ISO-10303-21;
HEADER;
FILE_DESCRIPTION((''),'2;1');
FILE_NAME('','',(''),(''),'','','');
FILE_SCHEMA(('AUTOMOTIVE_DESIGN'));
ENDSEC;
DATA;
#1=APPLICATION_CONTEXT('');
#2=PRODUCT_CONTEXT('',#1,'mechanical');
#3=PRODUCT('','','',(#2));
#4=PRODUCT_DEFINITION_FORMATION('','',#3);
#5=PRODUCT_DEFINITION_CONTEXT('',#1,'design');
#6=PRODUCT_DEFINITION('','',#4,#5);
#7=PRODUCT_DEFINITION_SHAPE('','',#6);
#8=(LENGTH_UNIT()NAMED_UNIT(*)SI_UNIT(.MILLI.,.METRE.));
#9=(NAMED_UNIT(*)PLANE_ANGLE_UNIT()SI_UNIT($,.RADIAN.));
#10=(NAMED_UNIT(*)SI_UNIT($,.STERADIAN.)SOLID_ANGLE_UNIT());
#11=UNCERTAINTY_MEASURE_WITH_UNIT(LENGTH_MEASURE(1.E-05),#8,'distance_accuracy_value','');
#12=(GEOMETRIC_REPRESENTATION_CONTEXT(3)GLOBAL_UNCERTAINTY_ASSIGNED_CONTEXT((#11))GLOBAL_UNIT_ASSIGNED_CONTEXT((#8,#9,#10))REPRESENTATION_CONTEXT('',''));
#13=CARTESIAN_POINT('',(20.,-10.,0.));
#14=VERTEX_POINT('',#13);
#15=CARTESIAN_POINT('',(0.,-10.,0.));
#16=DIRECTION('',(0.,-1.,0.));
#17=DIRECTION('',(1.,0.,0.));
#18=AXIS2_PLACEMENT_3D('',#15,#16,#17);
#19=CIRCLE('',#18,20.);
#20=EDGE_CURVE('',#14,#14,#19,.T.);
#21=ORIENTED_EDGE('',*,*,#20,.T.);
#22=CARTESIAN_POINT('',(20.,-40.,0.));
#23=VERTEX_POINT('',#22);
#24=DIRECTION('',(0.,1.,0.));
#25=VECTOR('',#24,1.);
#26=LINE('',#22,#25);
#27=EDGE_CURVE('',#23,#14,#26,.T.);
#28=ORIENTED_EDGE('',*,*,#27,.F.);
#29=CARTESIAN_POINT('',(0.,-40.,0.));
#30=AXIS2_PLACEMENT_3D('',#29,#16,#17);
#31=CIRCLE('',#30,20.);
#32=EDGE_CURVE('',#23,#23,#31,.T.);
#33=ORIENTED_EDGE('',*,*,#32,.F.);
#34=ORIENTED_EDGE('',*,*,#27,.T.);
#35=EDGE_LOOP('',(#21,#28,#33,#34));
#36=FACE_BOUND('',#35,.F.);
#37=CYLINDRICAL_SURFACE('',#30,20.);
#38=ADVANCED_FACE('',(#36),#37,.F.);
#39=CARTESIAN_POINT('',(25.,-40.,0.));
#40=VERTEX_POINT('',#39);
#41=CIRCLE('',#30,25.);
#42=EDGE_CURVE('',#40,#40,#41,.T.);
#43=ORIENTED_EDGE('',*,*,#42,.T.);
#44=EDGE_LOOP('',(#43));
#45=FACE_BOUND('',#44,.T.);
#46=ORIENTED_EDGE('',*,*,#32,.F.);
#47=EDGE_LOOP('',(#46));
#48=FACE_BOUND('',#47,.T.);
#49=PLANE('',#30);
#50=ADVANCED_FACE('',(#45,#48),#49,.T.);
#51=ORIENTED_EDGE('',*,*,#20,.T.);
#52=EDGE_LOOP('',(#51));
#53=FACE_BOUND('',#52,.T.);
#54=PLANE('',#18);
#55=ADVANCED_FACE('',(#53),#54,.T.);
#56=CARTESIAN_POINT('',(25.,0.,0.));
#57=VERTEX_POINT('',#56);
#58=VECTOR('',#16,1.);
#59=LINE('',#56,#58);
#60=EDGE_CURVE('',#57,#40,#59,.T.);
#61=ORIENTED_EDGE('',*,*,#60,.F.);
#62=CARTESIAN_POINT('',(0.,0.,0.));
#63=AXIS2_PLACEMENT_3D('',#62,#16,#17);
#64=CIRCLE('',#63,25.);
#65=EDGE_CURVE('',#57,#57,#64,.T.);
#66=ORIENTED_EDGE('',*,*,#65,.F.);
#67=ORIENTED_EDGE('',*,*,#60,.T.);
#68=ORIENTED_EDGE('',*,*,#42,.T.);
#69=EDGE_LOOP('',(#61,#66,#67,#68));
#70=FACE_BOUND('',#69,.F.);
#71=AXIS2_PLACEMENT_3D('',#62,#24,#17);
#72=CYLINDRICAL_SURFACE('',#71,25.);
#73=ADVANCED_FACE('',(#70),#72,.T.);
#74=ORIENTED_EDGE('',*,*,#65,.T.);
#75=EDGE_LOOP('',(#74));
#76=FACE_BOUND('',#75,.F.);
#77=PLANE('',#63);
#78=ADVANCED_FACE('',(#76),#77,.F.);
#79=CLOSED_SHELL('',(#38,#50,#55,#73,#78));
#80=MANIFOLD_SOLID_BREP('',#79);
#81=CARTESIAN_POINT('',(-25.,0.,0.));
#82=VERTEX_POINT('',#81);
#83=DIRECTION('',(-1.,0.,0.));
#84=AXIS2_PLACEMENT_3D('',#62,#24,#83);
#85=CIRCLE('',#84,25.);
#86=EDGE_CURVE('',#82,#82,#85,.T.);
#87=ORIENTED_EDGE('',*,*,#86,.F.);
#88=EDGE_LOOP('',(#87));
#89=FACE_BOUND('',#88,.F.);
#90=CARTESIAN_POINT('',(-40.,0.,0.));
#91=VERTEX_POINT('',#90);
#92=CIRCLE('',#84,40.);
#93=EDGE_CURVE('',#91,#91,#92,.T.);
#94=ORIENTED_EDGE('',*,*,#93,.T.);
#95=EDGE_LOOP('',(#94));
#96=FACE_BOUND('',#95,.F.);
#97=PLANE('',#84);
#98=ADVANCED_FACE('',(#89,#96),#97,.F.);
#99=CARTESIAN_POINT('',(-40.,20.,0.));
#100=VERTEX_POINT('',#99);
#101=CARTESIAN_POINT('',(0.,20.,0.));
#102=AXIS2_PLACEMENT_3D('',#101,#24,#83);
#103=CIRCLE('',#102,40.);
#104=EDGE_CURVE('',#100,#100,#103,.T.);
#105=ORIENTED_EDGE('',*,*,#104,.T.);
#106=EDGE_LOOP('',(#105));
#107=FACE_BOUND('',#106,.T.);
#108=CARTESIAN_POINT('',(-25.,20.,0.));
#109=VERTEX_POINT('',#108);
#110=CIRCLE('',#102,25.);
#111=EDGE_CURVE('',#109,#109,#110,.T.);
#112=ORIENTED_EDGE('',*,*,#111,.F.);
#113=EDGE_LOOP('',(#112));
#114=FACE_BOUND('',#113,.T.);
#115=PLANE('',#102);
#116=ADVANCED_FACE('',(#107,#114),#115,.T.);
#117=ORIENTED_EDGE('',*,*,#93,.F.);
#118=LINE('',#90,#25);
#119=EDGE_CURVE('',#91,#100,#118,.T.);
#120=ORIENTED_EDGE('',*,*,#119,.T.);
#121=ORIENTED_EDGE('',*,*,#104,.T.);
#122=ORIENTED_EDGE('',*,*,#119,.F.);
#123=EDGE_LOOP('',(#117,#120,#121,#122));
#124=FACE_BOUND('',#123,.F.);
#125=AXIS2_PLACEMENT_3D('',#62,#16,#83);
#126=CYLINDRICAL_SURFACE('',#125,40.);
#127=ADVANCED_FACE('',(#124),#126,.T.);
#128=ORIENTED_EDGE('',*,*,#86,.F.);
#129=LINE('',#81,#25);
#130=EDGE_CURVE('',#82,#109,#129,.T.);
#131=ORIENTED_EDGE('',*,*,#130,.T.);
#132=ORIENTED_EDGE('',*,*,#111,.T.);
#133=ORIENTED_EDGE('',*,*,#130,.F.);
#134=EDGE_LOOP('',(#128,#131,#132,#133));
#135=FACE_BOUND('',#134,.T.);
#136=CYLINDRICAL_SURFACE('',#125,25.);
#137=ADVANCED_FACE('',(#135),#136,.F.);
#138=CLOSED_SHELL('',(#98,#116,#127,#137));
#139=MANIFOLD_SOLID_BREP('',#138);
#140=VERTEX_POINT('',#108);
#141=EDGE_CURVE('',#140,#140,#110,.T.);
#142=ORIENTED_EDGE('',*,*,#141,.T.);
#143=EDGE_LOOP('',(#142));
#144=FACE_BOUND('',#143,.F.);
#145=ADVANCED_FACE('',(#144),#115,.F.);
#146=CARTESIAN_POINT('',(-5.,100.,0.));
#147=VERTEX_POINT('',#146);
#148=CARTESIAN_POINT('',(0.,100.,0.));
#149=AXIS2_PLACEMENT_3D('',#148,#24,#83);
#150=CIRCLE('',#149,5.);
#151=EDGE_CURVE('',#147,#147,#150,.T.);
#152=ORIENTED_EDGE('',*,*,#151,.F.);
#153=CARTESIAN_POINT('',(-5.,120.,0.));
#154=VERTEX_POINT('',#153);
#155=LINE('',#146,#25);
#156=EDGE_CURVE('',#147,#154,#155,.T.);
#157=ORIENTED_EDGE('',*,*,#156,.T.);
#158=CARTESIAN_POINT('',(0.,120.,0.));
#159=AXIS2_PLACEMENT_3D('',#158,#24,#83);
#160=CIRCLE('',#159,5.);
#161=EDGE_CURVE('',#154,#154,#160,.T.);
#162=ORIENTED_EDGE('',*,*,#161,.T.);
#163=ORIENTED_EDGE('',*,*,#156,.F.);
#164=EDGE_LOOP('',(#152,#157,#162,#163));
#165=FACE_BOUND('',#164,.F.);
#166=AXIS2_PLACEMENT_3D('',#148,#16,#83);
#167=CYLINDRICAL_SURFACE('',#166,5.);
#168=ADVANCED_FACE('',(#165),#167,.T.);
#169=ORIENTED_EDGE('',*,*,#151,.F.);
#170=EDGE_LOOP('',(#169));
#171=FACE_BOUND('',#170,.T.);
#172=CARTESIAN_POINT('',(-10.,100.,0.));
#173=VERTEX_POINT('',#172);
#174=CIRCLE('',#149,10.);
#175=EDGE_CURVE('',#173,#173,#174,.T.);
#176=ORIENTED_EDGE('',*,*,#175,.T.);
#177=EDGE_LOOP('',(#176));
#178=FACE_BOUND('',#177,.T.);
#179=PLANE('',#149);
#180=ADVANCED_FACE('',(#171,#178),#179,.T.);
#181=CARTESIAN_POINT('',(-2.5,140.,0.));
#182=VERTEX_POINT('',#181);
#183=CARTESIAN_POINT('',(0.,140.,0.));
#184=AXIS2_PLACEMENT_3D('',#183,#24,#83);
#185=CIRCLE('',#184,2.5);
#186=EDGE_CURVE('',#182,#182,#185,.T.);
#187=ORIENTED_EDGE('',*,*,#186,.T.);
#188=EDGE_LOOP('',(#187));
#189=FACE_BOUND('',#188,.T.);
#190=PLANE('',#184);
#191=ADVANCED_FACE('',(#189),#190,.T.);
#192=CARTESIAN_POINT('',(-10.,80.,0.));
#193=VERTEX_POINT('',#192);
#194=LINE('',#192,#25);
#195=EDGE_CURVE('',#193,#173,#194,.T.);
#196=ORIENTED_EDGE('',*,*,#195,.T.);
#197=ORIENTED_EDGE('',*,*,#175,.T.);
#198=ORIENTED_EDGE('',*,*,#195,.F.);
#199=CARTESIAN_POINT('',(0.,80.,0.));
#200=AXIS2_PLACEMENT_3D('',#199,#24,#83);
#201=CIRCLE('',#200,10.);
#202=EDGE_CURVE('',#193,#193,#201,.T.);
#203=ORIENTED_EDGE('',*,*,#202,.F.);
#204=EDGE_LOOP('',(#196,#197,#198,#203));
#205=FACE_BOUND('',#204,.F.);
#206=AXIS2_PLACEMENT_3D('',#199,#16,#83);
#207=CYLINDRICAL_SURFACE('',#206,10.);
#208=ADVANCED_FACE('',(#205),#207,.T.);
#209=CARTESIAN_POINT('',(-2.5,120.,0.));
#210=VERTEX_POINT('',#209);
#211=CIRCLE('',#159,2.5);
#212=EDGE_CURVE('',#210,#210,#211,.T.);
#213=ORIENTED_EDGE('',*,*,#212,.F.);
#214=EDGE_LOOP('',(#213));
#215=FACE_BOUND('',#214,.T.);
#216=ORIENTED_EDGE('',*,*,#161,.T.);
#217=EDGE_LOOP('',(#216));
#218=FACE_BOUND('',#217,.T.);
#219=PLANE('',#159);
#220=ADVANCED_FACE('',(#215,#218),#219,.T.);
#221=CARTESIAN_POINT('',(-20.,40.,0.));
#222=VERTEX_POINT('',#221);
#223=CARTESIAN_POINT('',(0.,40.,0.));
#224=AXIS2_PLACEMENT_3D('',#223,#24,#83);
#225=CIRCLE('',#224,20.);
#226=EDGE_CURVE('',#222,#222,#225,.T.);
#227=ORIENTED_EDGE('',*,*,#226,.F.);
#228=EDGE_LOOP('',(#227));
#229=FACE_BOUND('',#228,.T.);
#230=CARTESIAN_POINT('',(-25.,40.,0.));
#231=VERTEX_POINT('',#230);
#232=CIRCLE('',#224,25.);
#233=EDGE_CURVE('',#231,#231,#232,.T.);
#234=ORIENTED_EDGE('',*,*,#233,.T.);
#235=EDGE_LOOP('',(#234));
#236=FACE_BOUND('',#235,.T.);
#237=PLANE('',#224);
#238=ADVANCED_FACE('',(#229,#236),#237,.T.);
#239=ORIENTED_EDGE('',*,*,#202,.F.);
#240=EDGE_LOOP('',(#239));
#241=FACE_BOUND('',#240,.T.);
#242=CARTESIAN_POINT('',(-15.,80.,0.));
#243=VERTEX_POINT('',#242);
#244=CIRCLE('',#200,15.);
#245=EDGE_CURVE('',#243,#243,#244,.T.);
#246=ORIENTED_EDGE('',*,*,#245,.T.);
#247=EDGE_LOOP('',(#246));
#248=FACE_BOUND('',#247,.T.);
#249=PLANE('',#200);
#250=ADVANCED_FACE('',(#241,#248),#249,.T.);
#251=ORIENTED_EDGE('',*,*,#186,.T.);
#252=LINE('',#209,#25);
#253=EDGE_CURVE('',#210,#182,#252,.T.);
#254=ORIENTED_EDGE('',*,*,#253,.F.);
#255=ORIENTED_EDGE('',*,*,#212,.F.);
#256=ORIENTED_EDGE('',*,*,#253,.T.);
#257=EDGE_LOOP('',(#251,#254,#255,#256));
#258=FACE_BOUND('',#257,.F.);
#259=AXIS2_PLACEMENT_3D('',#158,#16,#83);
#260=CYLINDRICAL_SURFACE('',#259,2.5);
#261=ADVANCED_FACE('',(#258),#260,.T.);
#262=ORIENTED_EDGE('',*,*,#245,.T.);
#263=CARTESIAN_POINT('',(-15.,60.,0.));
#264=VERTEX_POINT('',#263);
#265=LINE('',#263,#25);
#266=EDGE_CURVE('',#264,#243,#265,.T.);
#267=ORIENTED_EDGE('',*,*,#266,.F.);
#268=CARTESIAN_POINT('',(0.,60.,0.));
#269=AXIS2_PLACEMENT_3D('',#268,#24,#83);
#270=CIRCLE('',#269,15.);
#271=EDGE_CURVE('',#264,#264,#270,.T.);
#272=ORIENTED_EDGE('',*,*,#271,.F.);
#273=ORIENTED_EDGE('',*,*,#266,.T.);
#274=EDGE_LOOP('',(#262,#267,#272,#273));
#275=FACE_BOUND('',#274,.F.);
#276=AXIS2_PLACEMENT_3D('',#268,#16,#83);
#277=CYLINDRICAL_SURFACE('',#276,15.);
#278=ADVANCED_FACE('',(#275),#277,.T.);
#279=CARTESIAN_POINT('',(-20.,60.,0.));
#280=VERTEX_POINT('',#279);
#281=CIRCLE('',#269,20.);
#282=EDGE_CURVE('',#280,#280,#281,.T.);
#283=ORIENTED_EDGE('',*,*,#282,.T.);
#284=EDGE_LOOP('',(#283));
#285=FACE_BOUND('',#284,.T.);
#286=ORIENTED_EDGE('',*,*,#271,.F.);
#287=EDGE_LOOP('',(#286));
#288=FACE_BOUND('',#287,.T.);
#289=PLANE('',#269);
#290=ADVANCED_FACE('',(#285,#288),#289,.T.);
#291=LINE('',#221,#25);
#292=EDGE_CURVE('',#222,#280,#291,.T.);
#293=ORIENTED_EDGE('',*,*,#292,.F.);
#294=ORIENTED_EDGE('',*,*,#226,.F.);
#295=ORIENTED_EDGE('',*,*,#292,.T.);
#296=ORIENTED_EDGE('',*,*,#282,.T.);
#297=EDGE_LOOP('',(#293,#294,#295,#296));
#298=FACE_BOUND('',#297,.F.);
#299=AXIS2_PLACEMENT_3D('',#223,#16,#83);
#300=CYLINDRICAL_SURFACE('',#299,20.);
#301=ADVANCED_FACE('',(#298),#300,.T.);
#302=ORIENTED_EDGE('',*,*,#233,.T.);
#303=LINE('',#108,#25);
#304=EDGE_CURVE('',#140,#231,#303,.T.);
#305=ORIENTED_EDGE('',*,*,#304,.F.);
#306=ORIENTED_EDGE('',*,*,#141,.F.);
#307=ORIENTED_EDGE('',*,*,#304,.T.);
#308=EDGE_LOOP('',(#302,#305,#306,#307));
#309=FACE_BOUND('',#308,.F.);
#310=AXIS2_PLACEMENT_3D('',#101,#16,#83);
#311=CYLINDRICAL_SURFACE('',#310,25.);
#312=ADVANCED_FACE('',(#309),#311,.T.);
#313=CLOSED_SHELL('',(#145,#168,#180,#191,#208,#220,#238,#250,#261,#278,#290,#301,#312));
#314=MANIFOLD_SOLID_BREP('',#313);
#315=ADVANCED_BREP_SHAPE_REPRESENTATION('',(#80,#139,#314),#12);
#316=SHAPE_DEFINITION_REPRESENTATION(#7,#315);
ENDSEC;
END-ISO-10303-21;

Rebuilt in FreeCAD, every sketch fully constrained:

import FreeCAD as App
import Part
import Sketcher
from FreeCAD import Vector
Q = App.Units.Quantity

doc = App.newDocument("Part")
params = doc.addObject("Spreadsheet::Sheet", "Params")
for row, (alias, value) in enumerate([
    ("sketch1_diameter", "50 mm"),
    ("pad1_length", "40 mm"),
    ("sketch2_diameter", "40 mm"),
    ("pocket1_length", "30 mm"),
    ("sketch3_diameter", "80 mm"),
    ("sketch3_diameter2", "50 mm"),
    ("pad2_length", "20 mm"),
    ("sketch4_diameter", "50 mm"),
    ("pad3_length", "20 mm"),
    ("sketch5_diameter", "40 mm"),
    ("pad4_length", "20 mm"),
    ("sketch6_diameter", "30 mm"),
    ("pad5_length", "20 mm"),
    ("sketch7_diameter", "20 mm"),
    ("pad6_length", "20 mm"),
    ("sketch8_diameter", "10 mm"),
    ("pad7_length", "20 mm"),
    ("sketch9_diameter", "5 mm"),
    ("pad8_length", "20 mm"),
], start=1):
    params.set(f"A{row}", alias)
    params.set(f"B{row}", "=" + value)
    params.setAlias(f"B{row}", alias)

body = doc.addObject("PartDesign::Body", "Body")

# Sketch on XZ plane
sketch1 = body.newObject("Sketcher::SketchObject", "Sketch")
sketch1.AttachmentSupport = (doc.getObject("XZ_Plane"), [""])
sketch1.MapMode = "FlatFace"
sketch1.addGeometry(Part.Circle(Vector(0, 0, 0), Vector(0, 0, 1), 25), False)
sketch1.addConstraint([
    Sketcher.Constraint("Coincident", 0, 3, -1, 1),
    Sketcher.Constraint("Diameter", 0, Q("50 mm")),
])
sketch1.setExpression("Constraints[1]", "Params.sketch1_diameter")
pad1 = body.newObject("PartDesign::Pad", "Pad")
pad1.Profile = sketch1
pad1.setExpression("Length", "Params.pad1_length")

# Sketch on XZ plane
sketch2 = body.newObject("Sketcher::SketchObject", "Sketch001")
sketch2.AttachmentSupport = (doc.getObject("XZ_Plane"), [""])
sketch2.MapMode = "FlatFace"
sketch2.AttachmentOffset = App.Placement(Vector(0, 0, 40), App.Rotation())
sketch2.addGeometry(Part.Circle(Vector(0, 0, 0), Vector(0, 0, 1), 20), False)
sketch2.addConstraint([
    Sketcher.Constraint("Coincident", 0, 3, -1, 1),
    Sketcher.Constraint("Diameter", 0, Q("40 mm")),
])
sketch2.setExpression("Constraints[1]", "Params.sketch2_diameter")
pocket1 = body.newObject("PartDesign::Pocket", "Pocket")
pocket1.Profile = sketch2
pocket1.setExpression("Length", "Params.pocket1_length")
body2 = doc.addObject("PartDesign::Body", "Body001")

# Sketch on XZ plane
sketch3 = body2.newObject("Sketcher::SketchObject", "Sketch002")
sketch3.AttachmentSupport = (doc.getObject("XZ_Plane001"), [""])
sketch3.MapMode = "FlatFace"
sketch3.addGeometry([
    Part.Circle(Vector(0, 0, 0), Vector(0, 0, 1), 40),
    Part.Circle(Vector(0, 0, 0), Vector(0, 0, 1), 25),
], False)
sketch3.addConstraint([
    Sketcher.Constraint("Coincident", 0, 3, -1, 1),
    Sketcher.Constraint("Coincident", 1, 3, -1, 1),
    Sketcher.Constraint("Diameter", 0, Q("80 mm")),
    Sketcher.Constraint("Diameter", 1, Q("50 mm")),
])
sketch3.setExpression("Constraints[2]", "Params.sketch3_diameter")
sketch3.setExpression("Constraints[3]", "Params.sketch3_diameter2")
pad2 = body2.newObject("PartDesign::Pad", "Pad001")
pad2.Profile = sketch3
pad2.setExpression("Length", "Params.pad2_length")
pad2.Reversed = True
body3 = doc.addObject("PartDesign::Body", "Body002")

# Sketch on XZ plane
sketch4 = body3.newObject("Sketcher::SketchObject", "Sketch003")
sketch4.AttachmentSupport = (doc.getObject("XZ_Plane002"), [""])
sketch4.MapMode = "FlatFace"
sketch4.AttachmentOffset = App.Placement(Vector(0, 0, -20), App.Rotation())
sketch4.addGeometry(Part.Circle(Vector(0, 0, 0), Vector(0, 0, 1), 25), False)
sketch4.addConstraint([
    Sketcher.Constraint("Coincident", 0, 3, -1, 1),
    Sketcher.Constraint("Diameter", 0, Q("50 mm")),
])
sketch4.setExpression("Constraints[1]", "Params.sketch4_diameter")
pad3 = body3.newObject("PartDesign::Pad", "Pad002")
pad3.Profile = sketch4
pad3.setExpression("Length", "Params.pad3_length")
pad3.Reversed = True

# Sketch on XZ plane
sketch5 = body3.newObject("Sketcher::SketchObject", "Sketch004")
sketch5.AttachmentSupport = (doc.getObject("XZ_Plane002"), [""])
sketch5.MapMode = "FlatFace"
sketch5.AttachmentOffset = App.Placement(Vector(0, 0, -40), App.Rotation())
sketch5.addGeometry(Part.Circle(Vector(0, 0, 0), Vector(0, 0, 1), 20), False)
sketch5.addConstraint([
    Sketcher.Constraint("Coincident", 0, 3, -1, 1),
    Sketcher.Constraint("Diameter", 0, Q("40 mm")),
])
sketch5.setExpression("Constraints[1]", "Params.sketch5_diameter")
pad4 = body3.newObject("PartDesign::Pad", "Pad003")
pad4.Profile = sketch5
pad4.setExpression("Length", "Params.pad4_length")
pad4.Reversed = True

# Sketch on XZ plane
sketch6 = body3.newObject("Sketcher::SketchObject", "Sketch005")
sketch6.AttachmentSupport = (doc.getObject("XZ_Plane002"), [""])
sketch6.MapMode = "FlatFace"
sketch6.AttachmentOffset = App.Placement(Vector(0, 0, -60), App.Rotation())
sketch6.addGeometry(Part.Circle(Vector(0, 0, 0), Vector(0, 0, 1), 15), False)
sketch6.addConstraint([
    Sketcher.Constraint("Coincident", 0, 3, -1, 1),
    Sketcher.Constraint("Diameter", 0, Q("30 mm")),
])
sketch6.setExpression("Constraints[1]", "Params.sketch6_diameter")
pad5 = body3.newObject("PartDesign::Pad", "Pad004")
pad5.Profile = sketch6
pad5.setExpression("Length", "Params.pad5_length")
pad5.Reversed = True

# Sketch on XZ plane
sketch7 = body3.newObject("Sketcher::SketchObject", "Sketch006")
sketch7.AttachmentSupport = (doc.getObject("XZ_Plane002"), [""])
sketch7.MapMode = "FlatFace"
sketch7.AttachmentOffset = App.Placement(Vector(0, 0, -80), App.Rotation())
sketch7.addGeometry(Part.Circle(Vector(0, 0, 0), Vector(0, 0, 1), 10), False)
sketch7.addConstraint([
    Sketcher.Constraint("Coincident", 0, 3, -1, 1),
    Sketcher.Constraint("Diameter", 0, Q("20 mm")),
])
sketch7.setExpression("Constraints[1]", "Params.sketch7_diameter")
pad6 = body3.newObject("PartDesign::Pad", "Pad005")
pad6.Profile = sketch7
pad6.setExpression("Length", "Params.pad6_length")
pad6.Reversed = True

# Sketch on XZ plane
sketch8 = body3.newObject("Sketcher::SketchObject", "Sketch007")
sketch8.AttachmentSupport = (doc.getObject("XZ_Plane002"), [""])
sketch8.MapMode = "FlatFace"
sketch8.AttachmentOffset = App.Placement(Vector(0, 0, -100), App.Rotation())
sketch8.addGeometry(Part.Circle(Vector(0, 0, 0), Vector(0, 0, 1), 5), False)
sketch8.addConstraint([
    Sketcher.Constraint("Coincident", 0, 3, -1, 1),
    Sketcher.Constraint("Diameter", 0, Q("10 mm")),
])
sketch8.setExpression("Constraints[1]", "Params.sketch8_diameter")
pad7 = body3.newObject("PartDesign::Pad", "Pad006")
pad7.Profile = sketch8
pad7.setExpression("Length", "Params.pad7_length")
pad7.Reversed = True

# Sketch on XZ plane
sketch9 = body3.newObject("Sketcher::SketchObject", "Sketch008")
sketch9.AttachmentSupport = (doc.getObject("XZ_Plane002"), [""])
sketch9.MapMode = "FlatFace"
sketch9.AttachmentOffset = App.Placement(Vector(0, 0, -120), App.Rotation())
sketch9.addGeometry(Part.Circle(Vector(0, 0, 0), Vector(0, 0, 1), 2.5), False)
sketch9.addConstraint([
    Sketcher.Constraint("Coincident", 0, 3, -1, 1),
    Sketcher.Constraint("Diameter", 0, Q("5 mm")),
])
sketch9.setExpression("Constraints[1]", "Params.sketch9_diameter")
pad8 = body3.newObject("PartDesign::Pad", "Pad007")
pad8.Profile = sketch9
pad8.setExpression("Length", "Params.pad8_length")
pad8.Reversed = True

doc.recompute()
